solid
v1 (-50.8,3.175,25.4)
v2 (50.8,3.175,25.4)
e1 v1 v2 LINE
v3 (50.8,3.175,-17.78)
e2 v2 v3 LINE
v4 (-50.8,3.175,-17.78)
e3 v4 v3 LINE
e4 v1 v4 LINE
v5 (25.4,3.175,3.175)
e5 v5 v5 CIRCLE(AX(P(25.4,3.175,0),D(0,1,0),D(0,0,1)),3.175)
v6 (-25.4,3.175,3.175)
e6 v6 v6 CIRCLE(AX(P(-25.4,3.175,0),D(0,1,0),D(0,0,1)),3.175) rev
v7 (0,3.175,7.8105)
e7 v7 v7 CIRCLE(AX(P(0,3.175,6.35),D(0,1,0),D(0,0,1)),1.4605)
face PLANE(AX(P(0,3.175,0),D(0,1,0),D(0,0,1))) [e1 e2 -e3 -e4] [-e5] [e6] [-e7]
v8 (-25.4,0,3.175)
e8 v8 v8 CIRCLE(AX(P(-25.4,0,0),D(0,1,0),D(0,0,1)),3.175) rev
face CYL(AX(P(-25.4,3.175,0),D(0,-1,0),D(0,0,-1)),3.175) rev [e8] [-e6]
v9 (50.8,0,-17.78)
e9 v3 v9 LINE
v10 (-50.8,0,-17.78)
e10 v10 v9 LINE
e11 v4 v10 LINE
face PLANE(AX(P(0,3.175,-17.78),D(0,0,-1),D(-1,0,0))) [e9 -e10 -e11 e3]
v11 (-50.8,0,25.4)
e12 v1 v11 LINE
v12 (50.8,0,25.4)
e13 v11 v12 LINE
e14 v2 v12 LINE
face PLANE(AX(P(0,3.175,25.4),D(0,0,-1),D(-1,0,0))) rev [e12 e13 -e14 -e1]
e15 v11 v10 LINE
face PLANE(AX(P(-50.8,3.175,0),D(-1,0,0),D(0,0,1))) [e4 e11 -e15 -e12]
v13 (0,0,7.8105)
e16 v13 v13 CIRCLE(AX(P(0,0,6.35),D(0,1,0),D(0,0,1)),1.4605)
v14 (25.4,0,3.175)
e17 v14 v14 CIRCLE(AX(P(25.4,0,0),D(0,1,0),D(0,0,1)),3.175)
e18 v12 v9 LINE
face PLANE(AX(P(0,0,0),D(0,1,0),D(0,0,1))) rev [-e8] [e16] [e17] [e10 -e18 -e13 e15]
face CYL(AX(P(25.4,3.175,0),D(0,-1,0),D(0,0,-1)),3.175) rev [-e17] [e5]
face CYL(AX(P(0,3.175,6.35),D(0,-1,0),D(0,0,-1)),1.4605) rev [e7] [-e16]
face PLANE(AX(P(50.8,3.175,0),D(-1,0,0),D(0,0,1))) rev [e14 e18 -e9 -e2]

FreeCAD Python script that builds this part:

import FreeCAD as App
import Part
import Sketcher

V = App.Vector
Q = App.Units.Quantity

doc = App.newDocument("Part")
body = doc.addObject("PartDesign::Body", "Body")

# Sketch on XZ plane
sketch1 = body.newObject("Sketcher::SketchObject", "Sketch")
sketch1.AttachmentSupport = (doc.getObject("XZ_Plane"), [""])
sketch1.MapMode = "FlatFace"
sketch1.addGeometry(Part.LineSegment(V(-50.8, -17.78, 0), V(-50.8, 25.4, 0)), False)
sketch1.addGeometry(Part.LineSegment(V(-50.8, 25.4, 0), V(50.8, 25.4, 0)), False)
sketch1.addGeometry(Part.LineSegment(V(50.8, 25.4, 0), V(50.8, -17.78, 0)), False)
sketch1.addGeometry(Part.LineSegment(V(50.8, -17.78, 0), V(-50.8, -17.78, 0)), False)
sketch1.addGeometry(Part.Circle(V(0, 6.35, 0), V(0, 0, 1), 1.4605), False)
sketch1.addGeometry(Part.Circle(V(-25.4, 0, 0), V(0, 0, 1), 3.175), False)
sketch1.addGeometry(Part.Circle(V(25.4, 0, 0), V(0, 0, 1), 3.175), False)
sketch1.addConstraint(Sketcher.Constraint("Coincident", 0, 2, 1, 1))
sketch1.addConstraint(Sketcher.Constraint("Coincident", 1, 2, 2, 1))
sketch1.addConstraint(Sketcher.Constraint("Coincident", 2, 2, 3, 1))
sketch1.addConstraint(Sketcher.Constraint("Coincident", 3, 2, 0, 1))
sketch1.addConstraint(Sketcher.Constraint("Vertical", 0))
sketch1.addConstraint(Sketcher.Constraint("Horizontal", 1))
sketch1.addConstraint(Sketcher.Constraint("Vertical", 2))
sketch1.addConstraint(Sketcher.Constraint("Horizontal", 3))
sketch1.addConstraint(Sketcher.Constraint("Equal", 5, 6))
sketch1.addConstraint(Sketcher.Constraint("Symmetric", 5, 3, 6, 3, -1, 1))
sketch1.addConstraint(Sketcher.Constraint("PointOnObject", 4, 3, -2))
sketch1.addConstraint(Sketcher.Constraint("PointOnObject", 5, 3, -1))
sketch1.addConstraint(Sketcher.Constraint("Diameter", 5, Q("0.25 in")))
sketch1.addConstraint(Sketcher.Constraint("DistanceX", 1, 1, 1, 2, Q("4 in")))
sketch1.addConstraint(Sketcher.Constraint("Diameter", 4, Q("0.115 in")))
sketch1.addConstraint(Sketcher.Constraint("DistanceY", 0, 1, 0, 2, Q("1.7 in")))
sketch1.addConstraint(Sketcher.Constraint("DistanceX", 5, 3, -1, 1, Q("1 in")))
sketch1.addConstraint(Sketcher.Constraint("DistanceX", 0, 2, -1, 1, Q("2 in")))
sketch1.addConstraint(Sketcher.Constraint("DistanceY", -1, 1, 0, 2, Q("1 in")))
sketch1.addConstraint(Sketcher.Constraint("DistanceY", -1, 1, 4, 3, Q("0.25 in")))
pad1 = body.newObject("PartDesign::Pad", "Pad")
pad1.Profile = sketch1
pad1.Length = Q("0.125 in")
pad1.Reversed = True

doc.recompute()
